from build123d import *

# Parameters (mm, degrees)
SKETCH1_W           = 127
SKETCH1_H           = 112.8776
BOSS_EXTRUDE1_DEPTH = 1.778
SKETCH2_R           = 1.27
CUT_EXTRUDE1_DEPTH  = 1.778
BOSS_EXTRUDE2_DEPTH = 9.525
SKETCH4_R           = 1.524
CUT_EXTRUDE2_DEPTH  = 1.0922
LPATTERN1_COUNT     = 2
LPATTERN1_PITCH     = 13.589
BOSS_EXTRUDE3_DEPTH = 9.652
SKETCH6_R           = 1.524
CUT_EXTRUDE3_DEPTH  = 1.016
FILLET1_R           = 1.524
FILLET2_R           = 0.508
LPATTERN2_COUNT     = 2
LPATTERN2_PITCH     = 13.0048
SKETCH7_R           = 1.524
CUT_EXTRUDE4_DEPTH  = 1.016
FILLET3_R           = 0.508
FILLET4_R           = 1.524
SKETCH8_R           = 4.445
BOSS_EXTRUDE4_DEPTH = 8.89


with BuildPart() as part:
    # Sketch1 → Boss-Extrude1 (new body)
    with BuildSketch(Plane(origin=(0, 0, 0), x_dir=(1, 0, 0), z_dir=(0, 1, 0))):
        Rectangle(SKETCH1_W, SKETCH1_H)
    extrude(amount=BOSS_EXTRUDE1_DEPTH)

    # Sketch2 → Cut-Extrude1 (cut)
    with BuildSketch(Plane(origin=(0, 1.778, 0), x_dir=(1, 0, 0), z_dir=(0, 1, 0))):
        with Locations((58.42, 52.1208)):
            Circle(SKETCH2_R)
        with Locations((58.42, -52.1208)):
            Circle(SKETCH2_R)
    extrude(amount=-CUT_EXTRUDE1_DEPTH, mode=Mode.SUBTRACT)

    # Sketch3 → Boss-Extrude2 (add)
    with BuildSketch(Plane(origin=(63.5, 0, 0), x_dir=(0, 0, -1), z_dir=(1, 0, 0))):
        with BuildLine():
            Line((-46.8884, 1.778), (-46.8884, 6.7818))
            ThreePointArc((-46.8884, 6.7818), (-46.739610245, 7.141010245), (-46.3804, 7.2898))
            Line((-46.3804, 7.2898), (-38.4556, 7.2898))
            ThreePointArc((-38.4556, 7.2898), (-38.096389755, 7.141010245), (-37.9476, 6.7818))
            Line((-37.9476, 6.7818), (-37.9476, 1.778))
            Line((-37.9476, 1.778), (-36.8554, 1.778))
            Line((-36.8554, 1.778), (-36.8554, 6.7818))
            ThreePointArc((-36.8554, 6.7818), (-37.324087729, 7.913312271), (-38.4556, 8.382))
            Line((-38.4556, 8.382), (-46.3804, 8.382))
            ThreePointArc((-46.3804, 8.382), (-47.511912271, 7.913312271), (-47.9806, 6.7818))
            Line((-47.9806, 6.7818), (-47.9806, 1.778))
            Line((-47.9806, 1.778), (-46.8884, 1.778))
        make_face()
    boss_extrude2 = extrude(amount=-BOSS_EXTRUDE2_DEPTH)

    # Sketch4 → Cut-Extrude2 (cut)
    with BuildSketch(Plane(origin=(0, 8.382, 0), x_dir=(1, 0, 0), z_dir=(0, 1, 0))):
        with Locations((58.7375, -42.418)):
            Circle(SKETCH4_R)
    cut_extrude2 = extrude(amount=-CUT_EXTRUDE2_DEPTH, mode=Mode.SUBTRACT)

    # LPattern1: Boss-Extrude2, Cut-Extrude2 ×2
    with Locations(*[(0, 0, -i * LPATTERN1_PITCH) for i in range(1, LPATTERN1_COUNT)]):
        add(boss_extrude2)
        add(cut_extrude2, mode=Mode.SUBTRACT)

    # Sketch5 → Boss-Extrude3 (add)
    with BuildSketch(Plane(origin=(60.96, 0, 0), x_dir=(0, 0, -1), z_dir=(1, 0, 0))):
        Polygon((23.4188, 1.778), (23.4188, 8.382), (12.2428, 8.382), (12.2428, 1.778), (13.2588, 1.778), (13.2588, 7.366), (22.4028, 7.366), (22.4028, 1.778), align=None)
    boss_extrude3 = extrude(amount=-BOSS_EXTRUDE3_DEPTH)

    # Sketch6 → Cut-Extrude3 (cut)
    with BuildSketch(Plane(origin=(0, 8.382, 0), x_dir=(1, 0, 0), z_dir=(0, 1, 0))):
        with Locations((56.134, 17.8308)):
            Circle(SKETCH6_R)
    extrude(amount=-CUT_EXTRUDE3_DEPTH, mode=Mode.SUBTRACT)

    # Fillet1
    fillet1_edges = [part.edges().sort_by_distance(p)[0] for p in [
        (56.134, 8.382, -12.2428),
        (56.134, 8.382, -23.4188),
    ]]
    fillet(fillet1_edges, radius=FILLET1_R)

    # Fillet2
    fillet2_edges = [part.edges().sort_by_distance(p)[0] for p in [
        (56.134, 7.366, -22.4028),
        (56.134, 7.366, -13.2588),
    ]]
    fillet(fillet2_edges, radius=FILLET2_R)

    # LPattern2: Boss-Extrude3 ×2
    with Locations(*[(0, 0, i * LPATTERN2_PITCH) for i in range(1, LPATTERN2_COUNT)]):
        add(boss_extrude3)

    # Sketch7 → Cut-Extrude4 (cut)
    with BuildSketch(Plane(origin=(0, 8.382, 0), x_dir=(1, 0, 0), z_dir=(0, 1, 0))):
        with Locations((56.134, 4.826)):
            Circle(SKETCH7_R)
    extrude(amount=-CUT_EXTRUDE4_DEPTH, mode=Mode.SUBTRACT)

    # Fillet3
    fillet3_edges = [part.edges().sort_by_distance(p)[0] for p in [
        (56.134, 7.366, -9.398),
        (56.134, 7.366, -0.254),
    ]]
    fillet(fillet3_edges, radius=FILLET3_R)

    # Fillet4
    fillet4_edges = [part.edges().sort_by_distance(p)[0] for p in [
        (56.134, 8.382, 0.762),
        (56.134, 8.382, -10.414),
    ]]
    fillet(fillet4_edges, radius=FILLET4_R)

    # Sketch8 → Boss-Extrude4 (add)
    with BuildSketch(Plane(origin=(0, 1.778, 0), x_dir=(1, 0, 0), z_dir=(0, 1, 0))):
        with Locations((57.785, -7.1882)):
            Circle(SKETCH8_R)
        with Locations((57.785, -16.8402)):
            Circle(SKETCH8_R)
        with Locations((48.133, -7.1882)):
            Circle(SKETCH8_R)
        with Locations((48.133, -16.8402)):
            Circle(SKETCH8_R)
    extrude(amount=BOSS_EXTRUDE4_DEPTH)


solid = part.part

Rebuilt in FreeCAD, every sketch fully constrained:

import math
import FreeCAD as App
import Part
import Sketcher

V = App.Vector
Q = App.Units.Quantity


def edges_at(feature, points):
    """Names of the edges that pass closest to the given points."""
    edges = feature.Shape.Edges
    near = lambda p: min(range(len(edges)), key=lambda i: edges[i].distToShape(Part.Vertex(*p))[0])
    return sorted({f"Edge{near(p) + 1}" for p in points})


def add_polygon(sketch, points):
    """Adds a closed chain of lines whose ends are joined by coincident constraints."""
    first, n = sketch.GeometryCount, len(points)
    for a, b in zip(points, points[1:] + points[:1]):
        sketch.addGeometry(Part.LineSegment(App.Vector(*a, 0), App.Vector(*b, 0)), False)
    for i in range(n):
        sketch.addConstraint(Sketcher.Constraint("Coincident", first + i, 2, first + (i + 1) % n, 1))

doc = App.newDocument("Part")
body = doc.addObject("PartDesign::Body", "Body")

# Sketch on XZ plane
sketch1 = body.newObject("Sketcher::SketchObject", "Sketch")
sketch1.AttachmentSupport = (doc.getObject("XZ_Plane"), [""])
sketch1.MapMode = "FlatFace"
add_polygon(sketch1, [(-63.5, -56.4388), (-63.5, 56.4388), (63.5, 56.4388), (63.5, -56.4388)])  # lines 0-3
sketch1.addConstraint(Sketcher.Constraint("Vertical", 0))
sketch1.addConstraint(Sketcher.Constraint("Horizontal", 1))
sketch1.addConstraint(Sketcher.Constraint("Vertical", 2))
sketch1.addConstraint(Sketcher.Constraint("Horizontal", 3))
sketch1.addConstraint(Sketcher.Constraint("Symmetric", 0, 2, 2, 2, -1, 1))
sketch1.addConstraint(Sketcher.Constraint("DistanceX", 1, 1, 1, 2, Q("5 in")))
sketch1.addConstraint(Sketcher.Constraint("DistanceY", 0, 1, 0, 2, Q("4.444 in")))
pad1 = body.newObject("PartDesign::Pad", "Pad")
pad1.Profile = sketch1
pad1.Length = Q("0.07 in")
pad1.Reversed = True

# Sketch on XZ plane
sketch2 = body.newObject("Sketcher::SketchObject", "Sketch001")
sketch2.AttachmentSupport = (doc.getObject("XZ_Plane"), [""])
sketch2.MapMode = "FlatFace"
sketch2.AttachmentOffset = App.Placement(V(0, 0, -0.07 * 25.4), App.Rotation())
sketch2.addGeometry(Part.Circle(V(58.42, -52.1208, 0), V(0, 0, 1), 1.27), False)
sketch2.addGeometry(Part.Circle(V(58.42, 52.1208, 0), V(0, 0, 1), 1.27), False)
sketch2.addConstraint(Sketcher.Constraint("Equal", 0, 1))
sketch2.addConstraint(Sketcher.Constraint("Symmetric", 0, 3, 1, 3, -1))
sketch2.addConstraint(Sketcher.Constraint("Diameter", 0, Q("0.1 in")))
sketch2.addConstraint(Sketcher.Constraint("DistanceX", -1, 1, 0, 3, Q("2.3 in")))
sketch2.addConstraint(Sketcher.Constraint("DistanceY", 0, 3, -1, 1, Q("2.052 in")))
pocket1 = body.newObject("PartDesign::Pocket", "Pocket")
pocket1.Profile = sketch2
pocket1.Length = Q("0.07 in")
pocket1.Reversed = True

# Sketch on YZ plane
sketch3 = body.newObject("Sketcher::SketchObject", "Sketch002")
sketch3.AttachmentSupport = (doc.getObject("YZ_Plane"), [""])
sketch3.MapMode = "FlatFace"
sketch3.AttachmentOffset = App.Placement(V(0, 0, 2.5 * 25.4), App.Rotation())
sketch3.addGeometry(Part.LineSegment(V(1.778, 46.8884, 0), V(6.7818, 46.8884, 0)), False)
sketch3.addGeometry(Part.ArcOfCircle(Part.Circle(V(6.7818, 46.3804, 0), V(0, 0, 1), 0.508), math.radians(0), math.radians(90)), False)
sketch3.addGeometry(Part.LineSegment(V(7.2898, 46.3804, 0), V(7.2898, 38.4556, 0)), False)
sketch3.addGeometry(Part.ArcOfCircle(Part.Circle(V(6.7818, 38.4556, 0), V(0, 0, 1), 0.508), math.radians(-90), math.radians(0)), False)
sketch3.addGeometry(Part.LineSegment(V(6.7818, 37.9476, 0), V(1.778, 37.9476, 0)), False)
sketch3.addGeometry(Part.LineSegment(V(1.778, 37.9476, 0), V(1.778, 36.8554, 0)), False)
sketch3.addGeometry(Part.LineSegment(V(1.778, 36.8554, 0), V(6.7818, 36.8554, 0)), False)
sketch3.addGeometry(Part.ArcOfCircle(Part.Circle(V(6.7818, 38.4556, 0), V(0, 0, 1), 1.6002), math.radians(-90), math.radians(0)), False)
sketch3.addGeometry(Part.LineSegment(V(8.382, 38.4556, 0), V(8.382, 46.3804, 0)), False)
sketch3.addGeometry(Part.ArcOfCircle(Part.Circle(V(6.7818, 46.3804, 0), V(0, 0, 1), 1.6002), math.radians(0), math.radians(90)), False)
sketch3.addGeometry(Part.LineSegment(V(6.7818, 47.9806, 0), V(1.778, 47.9806, 0)), False)
sketch3.addGeometry(Part.LineSegment(V(1.778, 47.9806, 0), V(1.778, 46.8884, 0)), False)
sketch3.addConstraint(Sketcher.Constraint("Tangent", 0, 2, 1, 2))
sketch3.addConstraint(Sketcher.Constraint("Tangent", 1, 1, 2, 1))
sketch3.addConstraint(Sketcher.Constraint("Tangent", 2, 2, 3, 2))
sketch3.addConstraint(Sketcher.Constraint("Tangent", 3, 1, 4, 1))
sketch3.addConstraint(Sketcher.Constraint("Coincident", 4, 2, 5, 1))
sketch3.addConstraint(Sketcher.Constraint("Coincident", 5, 2, 6, 1))
sketch3.addConstraint(Sketcher.Constraint("Tangent", 6, 2, 7, 1))
sketch3.addConstraint(Sketcher.Constraint("Tangent", 7, 2, 8, 1))
sketch3.addConstraint(Sketcher.Constraint("Tangent", 8, 2, 9, 1))
sketch3.addConstraint(Sketcher.Constraint("Tangent", 9, 2, 10, 1))
sketch3.addConstraint(Sketcher.Constraint("Coincident", 10, 2, 11, 1))
sketch3.addConstraint(Sketcher.Constraint("Coincident", 11, 2, 0, 1))
sketch3.addConstraint(Sketcher.Constraint("Horizontal", 0))
sketch3.addConstraint(Sketcher.Constraint("Vertical", 2))
sketch3.addConstraint(Sketcher.Constraint("Horizontal", 4))
sketch3.addConstraint(Sketcher.Constraint("Vertical", 5))
sketch3.addConstraint(Sketcher.Constraint("Horizontal", 6))
sketch3.addConstraint(Sketcher.Constraint("Vertical", 8))
sketch3.addConstraint(Sketcher.Constraint("Horizontal", 10))
sketch3.addConstraint(Sketcher.Constraint("Vertical", 11))
sketch3.addConstraint(Sketcher.Constraint("Coincident", 7, 3, 3, 3))
sketch3.addConstraint(Sketcher.Constraint("Coincident", 9, 3, 1, 3))
sketch3.addConstraint(Sketcher.Constraint("Equal", 1, 3))
sketch3.addConstraint(Sketcher.Constraint("Vertical", 5, 2, 10, 2))
sketch3.addConstraint(Sketcher.Constraint("Radius", 1, Q("0.02 in")))
sketch3.addConstraint(Sketcher.Constraint("Radius", 7, Q("0.063 in")))
sketch3.addConstraint(Sketcher.Constraint("DistanceX", 0, 1, 0, 2, Q("0.197 in")))
sketch3.addConstraint(Sketcher.Constraint("DistanceY", 2, 2, 2, 1, Q("0.312 in")))
sketch3.addConstraint(Sketcher.Constraint("DistanceX", -1, 1, 4, 2, Q("0.07 in")))
sketch3.addConstraint(Sketcher.Constraint("DistanceY", -1, 1, 1, 3, Q("1.826 in")))
pad2 = body.newObject("PartDesign::Pad", "Pad001")
pad2.Profile = sketch3
pad2.Length = Q("0.375 in")
pad2.Reversed = True

# Sketch on XZ plane
sketch4 = body.newObject("Sketcher::SketchObject", "Sketch003")
sketch4.AttachmentSupport = (doc.getObject("XZ_Plane"), [""])
sketch4.MapMode = "FlatFace"
sketch4.AttachmentOffset = App.Placement(V(0, 0, -0.33 * 25.4), App.Rotation())
sketch4.addGeometry(Part.Circle(V(58.7375, 42.418, 0), V(0, 0, 1), 1.524), False)
sketch4.addConstraint(Sketcher.Constraint("Diameter", 0, Q("0.12 in")))
sketch4.addConstraint(Sketcher.Constraint("DistanceY", -1, 1, 0, 3, Q("1.67 in")))
sketch4.addConstraint(Sketcher.Constraint("DistanceX", -1, 1, 0, 3, Q("2.3125 in")))
pocket2 = body.newObject("PartDesign::Pocket", "Pocket001")
pocket2.Profile = sketch4
pocket2.Length = Q("0.043 in")
pocket2.Reversed = True
doc.recompute()

linearpattern = body.newObject("PartDesign::LinearPattern", "LinearPattern")
linearpattern.Originals = [pad2, pocket2]
linearpattern.Direction = (doc.getObject("Z_Axis"), [""])
linearpattern.Mode = "offset"
linearpattern.Offset = Q("0.535 in")
linearpattern.Occurrences = 2
linearpattern.Reversed = True
body.Tip = linearpattern

# Sketch on YZ plane
sketch5 = body.newObject("Sketcher::SketchObject", "Sketch004")
sketch5.AttachmentSupport = (doc.getObject("YZ_Plane"), [""])
sketch5.MapMode = "FlatFace"
sketch5.AttachmentOffset = App.Placement(V(0, 0, 2.4 * 25.4), App.Rotation())
add_polygon(sketch5, [(1.778, -23.4188), (8.382, -23.4188), (8.382, -12.2428), (1.778, -12.2428), (1.778, -13.2588), (7.366, -13.2588), (7.366, -22.4028), (1.778, -22.4028)])  # lines 0-7
sketch5.addConstraint(Sketcher.Constraint("Horizontal", 0))
sketch5.addConstraint(Sketcher.Constraint("Vertical", 1))
sketch5.addConstraint(Sketcher.Constraint("Horizontal", 2))
sketch5.addConstraint(Sketcher.Constraint("Vertical", 3))
sketch5.addConstraint(Sketcher.Constraint("Horizontal", 4))
sketch5.addConstraint(Sketcher.Constraint("Vertical", 5))
sketch5.addConstraint(Sketcher.Constraint("Horizontal", 6))
sketch5.addConstraint(Sketcher.Constraint("Vertical", 7))
sketch5.addConstraint(Sketcher.Constraint("Vertical", 3, 2, 6, 2))
sketch5.addConstraint(Sketcher.Constraint("Equal", 3, 7))
sketch5.addConstraint(Sketcher.Constraint("DistanceX", 0, 1, 0, 2, Q("0.26 in")))
sketch5.addConstraint(Sketcher.Constraint("DistanceX", 4, 1, 4, 2, Q("0.22 in")))
sketch5.addConstraint(Sketcher.Constraint("DistanceY", 1, 1, 1, 2, Q("0.44 in")))
sketch5.addConstraint(Sketcher.Constraint("DistanceY", 3, 2, 3, 1, Q("0.04 in")))
sketch5.addConstraint(Sketcher.Constraint("DistanceX", -1, 1, 0, 2, Q("0.33 in")))
sketch5.addConstraint(Sketcher.Constraint("DistanceY", 0, 2, -1, 1, Q("0.922 in")))
pad3 = body.newObject("PartDesign::Pad", "Pad002")
pad3.Profile = sketch5
pad3.Length = Q("0.38 in")
pad3.Reversed = True

# Sketch on XZ plane
sketch6 = body.newObject("Sketcher::SketchObject", "Sketch005")
sketch6.AttachmentSupport = (doc.getObject("XZ_Plane"), [""])
sketch6.MapMode = "FlatFace"
sketch6.AttachmentOffset = App.Placement(V(0, 0, -0.33 * 25.4), App.Rotation())
sketch6.addGeometry(Part.Circle(V(56.134, -17.8308, 0), V(0, 0, 1), 1.524), False)
sketch6.addConstraint(Sketcher.Constraint("Diameter", 0, Q("0.12 in")))
sketch6.addConstraint(Sketcher.Constraint("DistanceX", -1, 1, 0, 3, Q("2.21 in")))
sketch6.addConstraint(Sketcher.Constraint("DistanceY", 0, 3, -1, 1, Q("0.702 in")))
pocket3 = body.newObject("PartDesign::Pocket", "Pocket002")
pocket3.Profile = sketch6
pocket3.Length = Q("0.04 in")
pocket3.Reversed = True
doc.recompute()

fillet = body.newObject("PartDesign::Fillet", "Fillet")
fillet.Base = (pocket3, edges_at(pocket3, [(56.134, 8.382, -12.243), (56.134, 8.382, -23.419)]))
fillet.Radius = Q("0.06 in")
doc.recompute()

fillet2 = body.newObject("PartDesign::Fillet", "Fillet001")
fillet2.Base = (fillet, edges_at(fillet, [(56.134, 7.366, -22.403), (56.134, 7.366, -13.259)]))
fillet2.Radius = Q("0.02 in")
doc.recompute()

linearpattern2 = body.newObject("PartDesign::LinearPattern", "LinearPattern001")
linearpattern2.Originals = [pad3]
linearpattern2.Direction = (doc.getObject("Z_Axis"), [""])
linearpattern2.Mode = "offset"
linearpattern2.Offset = Q("0.512 in")
linearpattern2.Occurrences = 2
body.Tip = linearpattern2

# Sketch on XZ plane
sketch7 = body.newObject("Sketcher::SketchObject", "Sketch006")
sketch7.AttachmentSupport = (doc.getObject("XZ_Plane"), [""])
sketch7.MapMode = "FlatFace"
sketch7.AttachmentOffset = App.Placement(V(0, 0, -0.33 * 25.4), App.Rotation())
sketch7.addGeometry(Part.Circle(V(56.134, -4.826, 0), V(0, 0, 1), 1.524), False)
sketch7.addConstraint(Sketcher.Constraint("Diameter", 0, Q("0.12 in")))
sketch7.addConstraint(Sketcher.Constraint("DistanceX", -1, 1, 0, 3, Q("2.21 in")))
sketch7.addConstraint(Sketcher.Constraint("DistanceY", 0, 3, -1, 1, Q("0.19 in")))
pocket4 = body.newObject("PartDesign::Pocket", "Pocket003")
pocket4.Profile = sketch7
pocket4.Length = Q("0.04 in")
pocket4.Reversed = True
doc.recompute()

fillet3 = body.newObject("PartDesign::Fillet", "Fillet002")
fillet3.Base = (pocket4, edges_at(pocket4, [(56.134, 7.366, -9.398), (56.134, 7.366, -0.254)]))
fillet3.Radius = Q("0.02 in")
doc.recompute()

fillet4 = body.newObject("PartDesign::Fillet", "Fillet003")
fillet4.Base = (fillet3, edges_at(fillet3, [(56.134, 8.382, 0.762), (56.134, 8.382, -10.414)]))
fillet4.Radius = Q("0.06 in")

# Sketch on XZ plane
sketch8 = body.newObject("Sketcher::SketchObject", "Sketch007")
sketch8.AttachmentSupport = (doc.getObject("XZ_Plane"), [""])
sketch8.MapMode = "FlatFace"
sketch8.AttachmentOffset = App.Placement(V(0, 0, -0.07 * 25.4), App.Rotation())
sketch8.addGeometry(Part.Circle(V(57.785, 7.1882, 0), V(0, 0, 1), 4.445), False)
sketch8.addGeometry(Part.Circle(V(57.785, 16.8402, 0), V(0, 0, 1), 4.445), False)
sketch8.addGeometry(Part.Circle(V(48.133, 7.1882, 0), V(0, 0, 1), 4.445), False)
sketch8.addGeometry(Part.Circle(V(48.133, 16.8402, 0), V(0, 0, 1), 4.445), False)
sketch8.addConstraint(Sketcher.Constraint("Equal", 0, 1))
sketch8.addConstraint(Sketcher.Constraint("Equal", 1, 2))
sketch8.addConstraint(Sketcher.Constraint("Equal", 2, 3))
sketch8.addConstraint(Sketcher.Constraint("Horizontal", 0, 3, 2, 3))
sketch8.addConstraint(Sketcher.Constraint("Horizontal", 1, 3, 3, 3))
sketch8.addConstraint(Sketcher.Constraint("Vertical", 0, 3, 1, 3))
sketch8.addConstraint(Sketcher.Constraint("Vertical", 2, 3, 3, 3))
sketch8.addConstraint(Sketcher.Constraint("Diameter", 0, Q("0.35 in")))
sketch8.addConstraint(Sketcher.Constraint("DistanceY", 0, 3, 1, 3, Q("0.38 in")))
sketch8.addConstraint(Sketcher.Constraint("DistanceX", 2, 3, 0, 3, Q("0.38 in")))
sketch8.addConstraint(Sketcher.Constraint("DistanceX", -1, 1, 0, 3, Q("2.275 in")))
sketch8.addConstraint(Sketcher.Constraint("DistanceY", -1, 1, 0, 3, Q("0.283 in")))
pad4 = body.newObject("PartDesign::Pad", "Pad003")
pad4.Profile = sketch8
pad4.Length = Q("0.35 in")
pad4.Reversed = True

doc.recompute()
